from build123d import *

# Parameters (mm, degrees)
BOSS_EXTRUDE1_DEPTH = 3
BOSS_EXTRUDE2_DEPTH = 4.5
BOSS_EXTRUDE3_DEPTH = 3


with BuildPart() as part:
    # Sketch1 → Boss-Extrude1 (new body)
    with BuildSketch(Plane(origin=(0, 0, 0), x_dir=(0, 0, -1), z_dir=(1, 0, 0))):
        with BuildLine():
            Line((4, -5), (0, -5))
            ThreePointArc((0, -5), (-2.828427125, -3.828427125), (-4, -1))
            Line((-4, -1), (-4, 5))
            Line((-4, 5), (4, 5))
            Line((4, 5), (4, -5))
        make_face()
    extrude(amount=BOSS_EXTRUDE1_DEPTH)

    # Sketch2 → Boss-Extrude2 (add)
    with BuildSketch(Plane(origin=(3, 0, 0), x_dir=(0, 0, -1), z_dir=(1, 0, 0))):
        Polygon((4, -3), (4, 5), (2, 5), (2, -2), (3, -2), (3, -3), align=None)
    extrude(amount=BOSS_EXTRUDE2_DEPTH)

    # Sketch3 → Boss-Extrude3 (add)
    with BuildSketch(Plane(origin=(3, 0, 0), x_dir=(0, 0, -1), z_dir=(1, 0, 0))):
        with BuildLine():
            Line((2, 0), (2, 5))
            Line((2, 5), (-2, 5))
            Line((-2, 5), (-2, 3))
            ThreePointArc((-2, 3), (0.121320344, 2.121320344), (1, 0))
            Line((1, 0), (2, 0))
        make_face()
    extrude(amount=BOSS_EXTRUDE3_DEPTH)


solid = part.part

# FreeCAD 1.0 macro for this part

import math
import FreeCAD as App
import Part
import Sketcher

V = App.Vector

doc = App.newDocument("Part")
body = doc.addObject("PartDesign::Body", "Body")

# Sketch on YZ plane
sketch1 = body.newObject("Sketcher::SketchObject", "Sketch")
sketch1.AttachmentSupport = (doc.getObject("YZ_Plane"), [""])
sketch1.MapMode = "FlatFace"
sketch1.addGeometry([
    Part.LineSegment(V(-5, 0, 0), V(-5, -4, 0)),  # 0
    Part.LineSegment(V(-5, -4, 0), V(5, -4, 0)),  # 1
    Part.LineSegment(V(5, -4, 0), V(5, 4, 0)),  # 2
    Part.LineSegment(V(5, 4, 0), V(-1, 4, 0)),  # 3
    Part.ArcOfCircle(Part.Circle(V(-1, 0, 0), V(0, 0, 1), 4), math.radians(90), math.radians(180)),  # 4
], False)
sketch1.addConstraint([
    Sketcher.Constraint("Coincident", 0, 2, 1, 1),
    Sketcher.Constraint("Coincident", 1, 2, 2, 1),
    Sketcher.Constraint("Coincident", 2, 2, 3, 1),
    Sketcher.Constraint("Tangent", 3, 2, 4, 1),
    Sketcher.Constraint("Tangent", 4, 2, 0, 1),
    Sketcher.Constraint("Vertical", 0),
    Sketcher.Constraint("Horizontal", 1),
    Sketcher.Constraint("Vertical", 2),
    Sketcher.Constraint("Horizontal", 3),
    Sketcher.Constraint("Symmetric", 0, 2, 2, 2, -1, 1),
    Sketcher.Constraint("PointOnObject", 4, 3, -1),
    Sketcher.Constraint("Radius", 4, 4.0),
    Sketcher.Constraint("DistanceX", 1, 1, 1, 2, 10.0),
])
pad1 = body.newObject("PartDesign::Pad", "Pad")
pad1.Profile = sketch1
pad1.Length = 3

# Sketch on YZ plane
sketch2 = body.newObject("Sketcher::SketchObject", "Sketch001")
sketch2.AttachmentSupport = (doc.getObject("YZ_Plane"), [""])
sketch2.MapMode = "FlatFace"
sketch2.AttachmentOffset = App.Placement(V(0, 0, 3), App.Rotation())
sketch2.addGeometry([
    Part.LineSegment(V(-3, -4, 0), V(5, -4, 0)),  # 0
    Part.LineSegment(V(5, -4, 0), V(5, -2, 0)),  # 1
    Part.LineSegment(V(5, -2, 0), V(-2, -2, 0)),  # 2
    Part.LineSegment(V(-2, -2, 0), V(-2, -3, 0)),  # 3
    Part.LineSegment(V(-2, -3, 0), V(-3, -3, 0)),  # 4
    Part.LineSegment(V(-3, -3, 0), V(-3, -4, 0)),  # 5
], False)
sketch2.addConstraint([
    Sketcher.Constraint("Coincident", 0, 2, 1, 1),
    Sketcher.Constraint("Coincident", 1, 2, 2, 1),
    Sketcher.Constraint("Coincident", 2, 2, 3, 1),
    Sketcher.Constraint("Coincident", 3, 2, 4, 1),
    Sketcher.Constraint("Coincident", 4, 2, 5, 1),
    Sketcher.Constraint("Coincident", 5, 2, 0, 1),
    Sketcher.Constraint("Horizontal", 0),
    Sketcher.Constraint("Vertical", 1),
    Sketcher.Constraint("Horizontal", 2),
    Sketcher.Constraint("Vertical", 3),
    Sketcher.Constraint("Horizontal", 4),
    Sketcher.Constraint("Vertical", 5),
    Sketcher.Constraint("Equal", 4, 3),
    Sketcher.Constraint("Equal", 3, 5),
    Sketcher.Constraint("DistanceX", 0, 1, 0, 2, 8.0),
    Sketcher.Constraint("DistanceX", 2, 2, 2, 1, 7.0),
    Sketcher.Constraint("DistanceX", -1, 1, 0, 2, 5.0),
    Sketcher.Constraint("DistanceY", 0, 2, -1, 1, 4.0),
])
pad2 = body.newObject("PartDesign::Pad", "Pad001")
pad2.Profile = sketch2
pad2.Length = 4.5

# Sketch on YZ plane
sketch3 = body.newObject("Sketcher::SketchObject", "Sketch002")
sketch3.AttachmentSupport = (doc.getObject("YZ_Plane"), [""])
sketch3.MapMode = "FlatFace"
sketch3.AttachmentOffset = App.Placement(V(0, 0, 3), App.Rotation())
sketch3.addGeometry([
    Part.LineSegment(V(0, -2, 0), V(5, -2, 0)),  # 0
    Part.LineSegment(V(5, -2, 0), V(5, 2, 0)),  # 1
    Part.LineSegment(V(5, 2, 0), V(3, 2, 0)),  # 2
    Part.ArcOfCircle(Part.Circle(V(0, 2, 0), V(0, 0, 1), 3), math.radians(-90), math.radians(0)),  # 3
    Part.LineSegment(V(0, -1, 0), V(0, -2, 0)),  # 4
], False)
sketch3.addConstraint([
    Sketcher.Constraint("Coincident", 0, 2, 1, 1),
    Sketcher.Constraint("Coincident", 1, 2, 2, 1),
    Sketcher.Constraint("Coincident", 2, 2, 3, 2),
    Sketcher.Constraint("Coincident", 3, 1, 4, 1),
    Sketcher.Constraint("Coincident", 4, 2, 0, 1),
    Sketcher.Constraint("Horizontal", 0),
    Sketcher.Constraint("Vertical", 1),
    Sketcher.Constraint("Horizontal", 2),
    Sketcher.Constraint("Vertical", 4),
    Sketcher.Constraint("PointOnObject", 3, 3, -2),
    Sketcher.Constraint("PointOnObject", 3, 1, -2),
    Sketcher.Constraint("Horizontal", 3, 3, 1, 2),
    Sketcher.Constraint("Radius", 3, 3.0),
    Sketcher.Constraint("DistanceX", 0, 1, 0, 2, 5.0),
    Sketcher.Constraint("DistanceY", 1, 1, 1, 2, 4.0),
    Sketcher.Constraint("DistanceY", -1, 1, 3, 3, 2.0),
])
pad3 = body.newObject("PartDesign::Pad", "Pad002")
pad3.Profile = sketch3
pad3.Length = 3

doc.recompute()
